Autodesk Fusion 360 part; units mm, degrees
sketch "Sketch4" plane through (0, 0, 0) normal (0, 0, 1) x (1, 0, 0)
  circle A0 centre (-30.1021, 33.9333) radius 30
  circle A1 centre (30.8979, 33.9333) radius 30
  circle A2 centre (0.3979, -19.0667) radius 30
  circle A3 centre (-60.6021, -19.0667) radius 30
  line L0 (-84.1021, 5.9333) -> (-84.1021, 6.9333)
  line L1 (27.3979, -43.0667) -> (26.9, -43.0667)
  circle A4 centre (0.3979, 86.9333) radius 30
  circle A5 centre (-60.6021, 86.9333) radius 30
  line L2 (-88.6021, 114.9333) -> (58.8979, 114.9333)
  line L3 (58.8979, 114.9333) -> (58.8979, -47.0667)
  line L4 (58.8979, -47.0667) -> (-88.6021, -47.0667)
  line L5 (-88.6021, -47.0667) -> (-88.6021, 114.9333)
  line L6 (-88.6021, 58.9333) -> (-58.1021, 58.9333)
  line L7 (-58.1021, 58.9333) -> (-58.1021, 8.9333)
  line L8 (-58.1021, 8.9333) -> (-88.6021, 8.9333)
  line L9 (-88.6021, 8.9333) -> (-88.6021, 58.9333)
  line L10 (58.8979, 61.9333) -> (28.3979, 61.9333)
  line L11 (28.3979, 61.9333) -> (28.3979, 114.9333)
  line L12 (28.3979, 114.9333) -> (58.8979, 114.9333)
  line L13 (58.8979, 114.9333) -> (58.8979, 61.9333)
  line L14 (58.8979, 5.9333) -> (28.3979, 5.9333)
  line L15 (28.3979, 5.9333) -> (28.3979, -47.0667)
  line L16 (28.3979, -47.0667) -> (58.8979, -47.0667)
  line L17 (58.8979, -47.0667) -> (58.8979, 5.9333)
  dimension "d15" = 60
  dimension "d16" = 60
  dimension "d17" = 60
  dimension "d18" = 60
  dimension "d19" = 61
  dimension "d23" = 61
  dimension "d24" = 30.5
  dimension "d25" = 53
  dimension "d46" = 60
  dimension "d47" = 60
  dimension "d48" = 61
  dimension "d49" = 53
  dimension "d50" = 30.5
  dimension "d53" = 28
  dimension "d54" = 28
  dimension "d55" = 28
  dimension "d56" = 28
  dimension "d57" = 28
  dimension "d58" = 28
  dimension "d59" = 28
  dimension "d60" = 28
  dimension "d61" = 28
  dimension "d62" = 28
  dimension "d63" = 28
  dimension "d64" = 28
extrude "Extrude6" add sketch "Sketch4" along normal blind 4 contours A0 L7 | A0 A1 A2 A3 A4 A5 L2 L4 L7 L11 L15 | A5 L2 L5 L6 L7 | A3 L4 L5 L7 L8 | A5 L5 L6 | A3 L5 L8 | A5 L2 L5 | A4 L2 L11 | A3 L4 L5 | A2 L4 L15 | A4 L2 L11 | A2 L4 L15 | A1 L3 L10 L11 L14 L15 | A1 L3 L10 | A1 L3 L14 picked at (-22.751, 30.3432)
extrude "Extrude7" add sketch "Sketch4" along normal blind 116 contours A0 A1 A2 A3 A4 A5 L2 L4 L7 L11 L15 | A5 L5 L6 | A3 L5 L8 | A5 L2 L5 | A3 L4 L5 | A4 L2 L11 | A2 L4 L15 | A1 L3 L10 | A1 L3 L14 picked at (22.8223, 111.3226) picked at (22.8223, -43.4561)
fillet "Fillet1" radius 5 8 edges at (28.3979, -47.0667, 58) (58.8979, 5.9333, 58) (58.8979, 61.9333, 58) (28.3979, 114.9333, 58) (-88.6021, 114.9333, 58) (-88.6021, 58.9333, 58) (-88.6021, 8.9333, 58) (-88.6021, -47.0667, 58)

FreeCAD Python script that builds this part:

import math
import FreeCAD as App
import Part
import Sketcher
from FreeCAD import Vector
Q = App.Units.Quantity


def edges_at(feature, points):
    """Names of the edges that pass closest to the given points."""
    edges = feature.Shape.Edges
    near = lambda p: min(range(len(edges)), key=lambda i: edges[i].distToShape(Part.Vertex(*p))[0])
    return sorted({f"Edge{near(p) + 1}" for p in points})


def add_polygon(sketch, points):
    """Adds a closed chain of lines whose ends are joined by coincident constraints."""
    first, n = sketch.GeometryCount, len(points)
    for a, b in zip(points, points[1:] + points[:1]):
        sketch.addGeometry(Part.LineSegment(App.Vector(*a, 0), App.Vector(*b, 0)), False)
    for i in range(n):
        sketch.addConstraint(Sketcher.Constraint("Coincident", first + i, 2, first + (i + 1) % n, 1))

doc = App.newDocument("Part")
body = doc.addObject("PartDesign::Body", "Body")

# Sketch on XY plane
sketch1 = body.newObject("Sketcher::SketchObject", "Sketch")
sketch1.AttachmentSupport = (doc.getObject("XY_Plane"), [""])
sketch1.MapMode = "FlatFace"
add_polygon(sketch1, [(-58, 9), (-89, 9), (-89, -47), (28, -47), (28, 6), (59, 6), (59, 62), (28, 62), (28, 115), (-89, 115), (-89, 59), (-58, 59)])  # lines 0-11
sketch1.addConstraint(Sketcher.Constraint("Horizontal", 0))
sketch1.addConstraint(Sketcher.Constraint("Vertical", 1))
sketch1.addConstraint(Sketcher.Constraint("Horizontal", 2))
sketch1.addConstraint(Sketcher.Constraint("Vertical", 3))
sketch1.addConstraint(Sketcher.Constraint("Horizontal", 4))
sketch1.addConstraint(Sketcher.Constraint("Vertical", 5))
sketch1.addConstraint(Sketcher.Constraint("Horizontal", 6))
sketch1.addConstraint(Sketcher.Constraint("Vertical", 7))
sketch1.addConstraint(Sketcher.Constraint("Horizontal", 8))
sketch1.addConstraint(Sketcher.Constraint("Vertical", 9))
sketch1.addConstraint(Sketcher.Constraint("Horizontal", 10))
sketch1.addConstraint(Sketcher.Constraint("Vertical", 11))
sketch1.addConstraint(Sketcher.Constraint("Vertical", 3, 2, 6, 2))
sketch1.addConstraint(Sketcher.Constraint("Vertical", 1, 2, 8, 2))
sketch1.addConstraint(Sketcher.Constraint("Equal", 0, 4))
sketch1.addConstraint(Sketcher.Constraint("Equal", 1, 5))
sketch1.addConstraint(Sketcher.Constraint("Equal", 3, 7))
sketch1.addConstraint(Sketcher.Constraint("Equal", 5, 9))
sketch1.addConstraint(Sketcher.Constraint("DistanceY", 3, 1, 3, 2, Q("53 mm")))
sketch1.addConstraint(Sketcher.Constraint("DistanceX", 0, 2, 0, 1, Q("30.5 mm")))
sketch1.addConstraint(Sketcher.Constraint("DistanceX", 2, 1, 2, 2, Q("117 mm")))
sketch1.addConstraint(Sketcher.Constraint("DistanceY", 1, 2, 1, 1, Q("56 mm")))
sketch1.addConstraint(Sketcher.Constraint("DistanceX", 0, 2, -1, 1, Q("88.602 mm")))
sketch1.addConstraint(Sketcher.Constraint("DistanceY", -1, 1, 0, 2, Q("8.9333 mm")))
pad1 = body.newObject("PartDesign::Pad", "Pad")
pad1.Profile = sketch1
pad1.Length = 4

# Sketch on XY plane
sketch2 = body.newObject("Sketcher::SketchObject", "Sketch001")
sketch2.AttachmentSupport = (doc.getObject("XY_Plane"), [""])
sketch2.MapMode = "FlatFace"
sketch2.addGeometry(Part.ArcOfCircle(Part.Circle(Vector(-30, 34, 0), Vector(0, 0, 1), 30), math.radians(-159), math.radians(159)), False)
sketch2.addGeometry(Part.LineSegment(Vector(-58, 23, 0), Vector(-58, 11, 0)), False)
sketch2.addGeometry(Part.ArcOfCircle(Part.Circle(Vector(-61, -19, 0), Vector(0, 0, 1), 30), math.radians(-69), math.radians(85)), False)
sketch2.addGeometry(Part.LineSegment(Vector(-50, -47, 0), Vector(-10, -47, 0)), False)
sketch2.addGeometry(Part.ArcOfCircle(Part.Circle(Vector(0, -19, 0), Vector(0, 0, 1), 30), math.radians(21), math.radians(249)), False)
sketch2.addGeometry(Part.LineSegment(Vector(28, -8, 0), Vector(28, 4, 0)), False)
sketch2.addGeometry(Part.ArcOfCircle(Part.Circle(Vector(31, 34, 0), Vector(0, 0, 1), 30), math.radians(95), math.radians(265)), False)
sketch2.addGeometry(Part.LineSegment(Vector(28, 64, 0), Vector(28, 76, 0)), False)
sketch2.addGeometry(Part.ArcOfCircle(Part.Circle(Vector(0, 87, 0), Vector(0, 0, 1), 30), math.radians(111), math.radians(339)), False)
sketch2.addGeometry(Part.LineSegment(Vector(-10, 115, 0), Vector(-50, 115, 0)), False)
sketch2.addGeometry(Part.ArcOfCircle(Part.Circle(Vector(-61, 87, 0), Vector(0, 0, 1), 30), math.radians(-85), math.radians(69)), False)
sketch2.addGeometry(Part.LineSegment(Vector(-58, 57, 0), Vector(-58, 45, 0)), False)
sketch2.addGeometry(Part.LineSegment(Vector(-89, 59, 0), Vector(-71, 59, 0)), False)
sketch2.addGeometry(Part.ArcOfCircle(Part.Circle(Vector(-61, 87, 0), Vector(0, 0, 1), 30), math.radians(-159), math.radians(-111)), False)
sketch2.addGeometry(Part.LineSegment(Vector(-89, 76, 0), Vector(-89, 59, 0)), False)
sketch2.addGeometry(Part.ArcOfCircle(Part.Circle(Vector(-61, -19, 0), Vector(0, 0, 1), 30), math.radians(111), math.radians(159)), False)
sketch2.addGeometry(Part.LineSegment(Vector(-71, 9, 0), Vector(-89, 9, 0)), False)
sketch2.addGeometry(Part.LineSegment(Vector(-89, 9, 0), Vector(-89, -8, 0)), False)
sketch2.addGeometry(Part.LineSegment(Vector(-89, 115, 0), Vector(-89, 98, 0)), False)
sketch2.addGeometry(Part.ArcOfCircle(Part.Circle(Vector(-61, 87, 0), Vector(0, 0, 1), 30), math.radians(111), math.radians(159)), False)
sketch2.addGeometry(Part.LineSegment(Vector(-71, 115, 0), Vector(-89, 115, 0)), False)
sketch2.addGeometry(Part.LineSegment(Vector(-89, -47, 0), Vector(-71, -47, 0)), False)
sketch2.addGeometry(Part.ArcOfCircle(Part.Circle(Vector(-61, -19, 0), Vector(0, 0, 1), 30), math.radians(-159), math.radians(-111)), False)
sketch2.addGeometry(Part.LineSegment(Vector(-89, -30, 0), Vector(-89, -47, 0)), False)
sketch2.addGeometry(Part.LineSegment(Vector(28, 115, 0), Vector(11, 115, 0)), False)
sketch2.addGeometry(Part.ArcOfCircle(Part.Circle(Vector(0, 87, 0), Vector(0, 0, 1), 30), math.radians(21), math.radians(69)), False)
sketch2.addGeometry(Part.LineSegment(Vector(28, 98, 0), Vector(28, 115, 0)), False)
sketch2.addGeometry(Part.ArcOfCircle(Part.Circle(Vector(0, -19, 0), Vector(0, 0, 1), 30), math.radians(-69), math.radians(-21)), False)
sketch2.addGeometry(Part.LineSegment(Vector(11, -47, 0), Vector(28, -47, 0)), False)
sketch2.addGeometry(Part.LineSegment(Vector(28, -47, 0), Vector(28, -30, 0)), False)
sketch2.addGeometry(Part.LineSegment(Vector(59, 62, 0), Vector(42, 62, 0)), False)
sketch2.addGeometry(Part.ArcOfCircle(Part.Circle(Vector(31, 34, 0), Vector(0, 0, 1), 30), math.radians(21), math.radians(69)), False)
sketch2.addGeometry(Part.LineSegment(Vector(59, 45, 0), Vector(59, 62, 0)), False)
sketch2.addGeometry(Part.ArcOfCircle(Part.Circle(Vector(31, 34, 0), Vector(0, 0, 1), 30), math.radians(-69), math.radians(-21)), False)
sketch2.addGeometry(Part.LineSegment(Vector(42, 6, 0), Vector(59, 6, 0)), False)
sketch2.addGeometry(Part.LineSegment(Vector(59, 6, 0), Vector(59, 23, 0)), False)
sketch2.addConstraint(Sketcher.Constraint("Coincident", 0, 1, 1, 1))
sketch2.addConstraint(Sketcher.Constraint("Coincident", 1, 2, 2, 2))
sketch2.addConstraint(Sketcher.Constraint("Coincident", 2, 1, 3, 1))
sketch2.addConstraint(Sketcher.Constraint("Coincident", 3, 2, 4, 2))
sketch2.addConstraint(Sketcher.Constraint("Coincident", 4, 1, 5, 1))
sketch2.addConstraint(Sketcher.Constraint("Coincident", 5, 2, 6, 2))
sketch2.addConstraint(Sketcher.Constraint("Coincident", 6, 1, 7, 1))
sketch2.addConstraint(Sketcher.Constraint("Coincident", 7, 2, 8, 2))
sketch2.addConstraint(Sketcher.Constraint("Coincident", 8, 1, 9, 1))
sketch2.addConstraint(Sketcher.Constraint("Coincident", 9, 2, 10, 2))
sketch2.addConstraint(Sketcher.Constraint("Coincident", 10, 1, 11, 1))
sketch2.addConstraint(Sketcher.Constraint("Coincident", 11, 2, 0, 2))
sketch2.addConstraint(Sketcher.Constraint("Coincident", 12, 2, 13, 2))
sketch2.addConstraint(Sketcher.Constraint("Coincident", 13, 1, 14, 1))
sketch2.addConstraint(Sketcher.Constraint("Coincident", 14, 2, 12, 1))
sketch2.addConstraint(Sketcher.Constraint("Coincident", 15, 1, 16, 1))
sketch2.addConstraint(Sketcher.Constraint("Coincident", 16, 2, 17, 1))
sketch2.addConstraint(Sketcher.Constraint("Coincident", 17, 2, 15, 2))
sketch2.addConstraint(Sketcher.Constraint("Coincident", 18, 2, 19, 2))
sketch2.addConstraint(Sketcher.Constraint("Coincident", 19, 1, 20, 1))
sketch2.addConstraint(Sketcher.Constraint("Coincident", 20, 2, 18, 1))
sketch2.addConstraint(Sketcher.Constraint("Coincident", 21, 2, 22, 2))
sketch2.addConstraint(Sketcher.Constraint("Coincident", 22, 1, 23, 1))
sketch2.addConstraint(Sketcher.Constraint("Coincident", 23, 2, 21, 1))
sketch2.addConstraint(Sketcher.Constraint("Coincident", 24, 2, 25, 2))
sketch2.addConstraint(Sketcher.Constraint("Coincident", 25, 1, 26, 1))
sketch2.addConstraint(Sketcher.Constraint("Coincident", 26, 2, 24, 1))
sketch2.addConstraint(Sketcher.Constraint("Coincident", 27, 1, 28, 1))
sketch2.addConstraint(Sketcher.Constraint("Coincident", 28, 2, 29, 1))
sketch2.addConstraint(Sketcher.Constraint("Coincident", 29, 2, 27, 2))
sketch2.addConstraint(Sketcher.Constraint("Coincident", 30, 2, 31, 2))
sketch2.addConstraint(Sketcher.Constraint("Coincident", 31, 1, 32, 1))
sketch2.addConstraint(Sketcher.Constraint("Coincident", 32, 2, 30, 1))
sketch2.addConstraint(Sketcher.Constraint("Coincident", 33, 1, 34, 1))
sketch2.addConstraint(Sketcher.Constraint("Coincident", 34, 2, 35, 1))
sketch2.addConstraint(Sketcher.Constraint("Coincident", 35, 2, 33, 2))
sketch2.addConstraint(Sketcher.Constraint("Vertical", 1))
sketch2.addConstraint(Sketcher.Constraint("Horizontal", 3))
sketch2.addConstraint(Sketcher.Constraint("Vertical", 5))
sketch2.addConstraint(Sketcher.Constraint("Vertical", 7))
sketch2.addConstraint(Sketcher.Constraint("Horizontal", 9))
sketch2.addConstraint(Sketcher.Constraint("Vertical", 11))
sketch2.addConstraint(Sketcher.Constraint("Horizontal", 12))
sketch2.addConstraint(Sketcher.Constraint("Vertical", 14))
sketch2.addConstraint(Sketcher.Constraint("Horizontal", 16))
sketch2.addConstraint(Sketcher.Constraint("Vertical", 17))
sketch2.addConstraint(Sketcher.Constraint("Vertical", 18))
sketch2.addConstraint(Sketcher.Constraint("Horizontal", 20))
sketch2.addConstraint(Sketcher.Constraint("Horizontal", 21))
sketch2.addConstraint(Sketcher.Constraint("Vertical", 23))
sketch2.addConstraint(Sketcher.Constraint("Horizontal", 24))
sketch2.addConstraint(Sketcher.Constraint("Vertical", 26))
sketch2.addConstraint(Sketcher.Constraint("Horizontal", 28))
sketch2.addConstraint(Sketcher.Constraint("Vertical", 29))
sketch2.addConstraint(Sketcher.Constraint("Horizontal", 30))
sketch2.addConstraint(Sketcher.Constraint("Vertical", 32))
sketch2.addConstraint(Sketcher.Constraint("Horizontal", 34))
sketch2.addConstraint(Sketcher.Constraint("Vertical", 35))
sketch2.addConstraint(Sketcher.Constraint("Coincident", 13, 3, 10, 3))
sketch2.addConstraint(Sketcher.Constraint("Coincident", 15, 3, 2, 3))
sketch2.addConstraint(Sketcher.Constraint("Coincident", 19, 3, 10, 3))
sketch2.addConstraint(Sketcher.Constraint("Coincident", 22, 3, 2, 3))
sketch2.addConstraint(Sketcher.Constraint("Coincident", 25, 3, 8, 3))
sketch2.addConstraint(Sketcher.Constraint("Coincident", 27, 3, 4, 3))
sketch2.addConstraint(Sketcher.Constraint("Coincident", 31, 3, 6, 3))
sketch2.addConstraint(Sketcher.Constraint("Coincident", 33, 3, 6, 3))
sketch2.addConstraint(Sketcher.Constraint("Equal", 0, 2))
sketch2.addConstraint(Sketcher.Constraint("Equal", 2, 4))
sketch2.addConstraint(Sketcher.Constraint("Equal", 4, 6))
sketch2.addConstraint(Sketcher.Constraint("Equal", 6, 8))
sketch2.addConstraint(Sketcher.Constraint("Equal", 8, 10))
sketch2.addConstraint(Sketcher.Constraint("Equal", 10, 13))
sketch2.addConstraint(Sketcher.Constraint("Equal", 13, 15))
sketch2.addConstraint(Sketcher.Constraint("Equal", 15, 19))
sketch2.addConstraint(Sketcher.Constraint("Equal", 19, 22))
sketch2.addConstraint(Sketcher.Constraint("Equal", 22, 25))
sketch2.addConstraint(Sketcher.Constraint("Equal", 25, 27))
sketch2.addConstraint(Sketcher.Constraint("Equal", 27, 31))
sketch2.addConstraint(Sketcher.Constraint("Equal", 31, 33))
sketch2.addConstraint(Sketcher.Constraint("Horizontal", 2, 3, 4, 3))
sketch2.addConstraint(Sketcher.Constraint("Horizontal", 0, 3, 6, 3))
sketch2.addConstraint(Sketcher.Constraint("Horizontal", 8, 3, 10, 3))
sketch2.addConstraint(Sketcher.Constraint("Horizontal", 7, 2, 13, 1))
sketch2.addConstraint(Sketcher.Constraint("Horizontal", 4, 1, 17, 2))
sketch2.addConstraint(Sketcher.Constraint("Horizontal", 9, 2, 19, 1))
sketch2.addConstraint(Sketcher.Constraint("Horizontal", 3, 2, 21, 2))
sketch2.addConstraint(Sketcher.Constraint("Horizontal", 20, 2, 24, 2))
sketch2.addConstraint(Sketcher.Constraint("Horizontal", 18, 2, 25, 1))
sketch2.addConstraint(Sketcher.Constraint("Horizontal", 23, 2, 27, 1))
sketch2.addConstraint(Sketcher.Constraint("Horizontal", 22, 1, 29, 2))
sketch2.addConstraint(Sketcher.Constraint("Horizontal", 11, 2, 31, 1))
sketch2.addConstraint(Sketcher.Constraint("Horizontal", 0, 1, 35, 2))
sketch2.addConstraint(Sketcher.Constraint("Vertical", 4, 3, 8, 3))
sketch2.addConstraint(Sketcher.Constraint("Vertical", 2, 3, 10, 3))
sketch2.addConstraint(Sketcher.Constraint("Vertical", 5, 2, 6, 1))
sketch2.addConstraint(Sketcher.Constraint("Vertical", 3, 2, 8, 1))
sketch2.addConstraint(Sketcher.Constraint("Vertical", 1, 2, 10, 1))
sketch2.addConstraint(Sketcher.Constraint("Vertical", 12, 2, 15, 1))
sketch2.addConstraint(Sketcher.Constraint("Vertical", 17, 2, 18, 2))
sketch2.addConstraint(Sketcher.Constraint("Vertical", 15, 1, 19, 1))
sketch2.addConstraint(Sketcher.Constraint("Vertical", 20, 2, 22, 1))
sketch2.addConstraint(Sketcher.Constraint("Vertical", 30, 2, 33, 1))
sketch2.addConstraint(Sketcher.Constraint("Equal", 28, 30))
sketch2.addConstraint(Sketcher.Constraint("Equal", 1, 5))
sketch2.addConstraint(Sketcher.Constraint("Equal", 5, 7))
sketch2.addConstraint(Sketcher.Constraint("Equal", 34, 14))
sketch2.addConstraint(Sketcher.Constraint("Equal", 29, 32))
sketch2.addConstraint(Sketcher.Constraint("Radius", 0, Q("30 mm")))
sketch2.addConstraint(Sketcher.Constraint("DistanceY", 2, 3, 0, 3, Q("53 mm")))
sketch2.addConstraint(Sketcher.Constraint("DistanceX", 2, 3, 4, 3, Q("61 mm")))
sketch2.addConstraint(Sketcher.Constraint("DistanceX", 0, 1, 0, 3, Q("28 mm")))
sketch2.addConstraint(Sketcher.Constraint("DistanceX", 2, 3, 0, 3, Q("30.5 mm")))
sketch2.addConstraint(Sketcher.Constraint("DistanceX", 0, 3, -1, 1, Q("30.102 mm")))
sketch2.addConstraint(Sketcher.Constraint("DistanceY", -1, 1, 0, 1, Q("23.163 mm")))
pad2 = body.newObject("PartDesign::Pad", "Pad001")
pad2.Profile = sketch2
pad2.Length = 116
doc.recompute()

fillet = body.newObject("PartDesign::Fillet", "Fillet")
fillet.Base = (pad2, edges_at(pad2, [
    (28.398, -47.067, 58),
    (58.898, 5.933, 58),
    (58.898, 61.933, 58),
    (28.398, 114.933, 58),
    (-88.602, 114.933, 58),
    (-88.602, 58.933, 58),
    (-88.602, 8.933, 58),
    (-88.602, -47.067, 58),
]))
fillet.Radius = 5

doc.recompute()
